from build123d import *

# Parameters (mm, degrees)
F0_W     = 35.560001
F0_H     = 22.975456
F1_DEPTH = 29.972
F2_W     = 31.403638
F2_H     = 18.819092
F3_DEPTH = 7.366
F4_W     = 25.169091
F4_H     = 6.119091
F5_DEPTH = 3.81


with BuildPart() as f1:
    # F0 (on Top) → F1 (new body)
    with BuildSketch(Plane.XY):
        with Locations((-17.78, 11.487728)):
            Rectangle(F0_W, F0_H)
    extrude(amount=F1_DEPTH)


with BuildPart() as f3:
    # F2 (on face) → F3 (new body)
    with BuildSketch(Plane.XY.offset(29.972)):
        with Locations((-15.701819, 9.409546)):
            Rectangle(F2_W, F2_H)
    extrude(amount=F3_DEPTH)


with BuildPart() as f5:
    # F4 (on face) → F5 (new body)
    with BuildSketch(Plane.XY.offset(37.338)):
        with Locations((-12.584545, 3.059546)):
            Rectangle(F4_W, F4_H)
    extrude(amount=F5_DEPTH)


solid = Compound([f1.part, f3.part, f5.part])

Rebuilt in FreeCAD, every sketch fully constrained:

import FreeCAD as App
import Part
import Sketcher
Q = App.Units.Quantity


def add_polygon(sketch, points):
    """Adds a closed chain of lines whose ends are joined by coincident constraints."""
    first, n = sketch.GeometryCount, len(points)
    for a, b in zip(points, points[1:] + points[:1]):
        sketch.addGeometry(Part.LineSegment(App.Vector(*a, 0), App.Vector(*b, 0)), False)
    for i in range(n):
        sketch.addConstraint(Sketcher.Constraint("Coincident", first + i, 2, first + (i + 1) % n, 1))

doc = App.newDocument("Part")
params = doc.addObject("Spreadsheet::Sheet", "Params")
for row, (alias, value) in enumerate([
    ("sketch1_width", "1.4 in"),
    ("pad1_length", "1.18 in"),
    ("pad2_length", "0.29 in"),
    ("pad3_length", "0.15 in"),
], start=1):
    params.set(f"A{row}", alias)
    params.set(f"B{row}", "=" + value)
    params.setAlias(f"B{row}", alias)

body = doc.addObject("PartDesign::Body", "Body")

# Sketch on XY plane
sketch1 = body.newObject("Sketcher::SketchObject", "Sketch")
sketch1.AttachmentSupport = (doc.getObject("XY_Plane"), [""])
sketch1.MapMode = "FlatFace"
add_polygon(sketch1, [(-35.560001, 22.975456), (-35.560001, 0), (0, 0), (0, 22.975456)])  # lines 0-3
sketch1.addConstraint([
    Sketcher.Constraint("Vertical", 0),
    Sketcher.Constraint("Horizontal", 1),
    Sketcher.Constraint("Vertical", 2),
    Sketcher.Constraint("Horizontal", 3),
    Sketcher.Constraint("Coincident", 1, 2, -1, 1),
    Sketcher.Constraint("DistanceX", 1, 1, 1, 2, Q("1.4 in")),
    Sketcher.Constraint("DistanceY", 0, 2, 0, 1, 22.975456),
])
sketch1.setExpression("Constraints[9]", "Params.sketch1_width")
pad1 = body.newObject("PartDesign::Pad", "Pad")
pad1.Profile = sketch1
pad1.setExpression("Length", "Params.pad1_length")
body2 = doc.addObject("PartDesign::Body", "Body001")

# Sketch on XY plane
sketch2 = body2.newObject("Sketcher::SketchObject", "Sketch001")
sketch2.AttachmentSupport = (doc.getObject("XY_Plane001"), [""])
sketch2.MapMode = "FlatFace"
sketch2.AttachmentOffset = App.Placement(App.Vector(0, 0, 1.18 * 25.4), App.Rotation())
add_polygon(sketch2, [(-31.403638, 18.819092), (-31.403638, 0), (0, 0), (0, 18.819092)])  # lines 0-3
sketch2.addConstraint([
    Sketcher.Constraint("Vertical", 0),
    Sketcher.Constraint("Horizontal", 1),
    Sketcher.Constraint("Vertical", 2),
    Sketcher.Constraint("Horizontal", 3),
    Sketcher.Constraint("Coincident", 1, 2, -1, 1),
    Sketcher.Constraint("DistanceX", 1, 1, 1, 2, 31.403638),
    Sketcher.Constraint("DistanceY", 0, 2, 0, 1, 18.819092),
])
pad2 = body2.newObject("PartDesign::Pad", "Pad001")
pad2.Profile = sketch2
pad2.setExpression("Length", "Params.pad2_length")
body3 = doc.addObject("PartDesign::Body", "Body002")

# Sketch on XY plane
sketch3 = body3.newObject("Sketcher::SketchObject", "Sketch002")
sketch3.AttachmentSupport = (doc.getObject("XY_Plane002"), [""])
sketch3.MapMode = "FlatFace"
sketch3.AttachmentOffset = App.Placement(App.Vector(0, 0, 1.47 * 25.4), App.Rotation())
add_polygon(sketch3, [(-25.16909, 6.119091), (-25.16909, 0), (0, 0), (0, 6.119091)])  # lines 0-3
sketch3.addConstraint([
    Sketcher.Constraint("Vertical", 0),
    Sketcher.Constraint("Horizontal", 1),
    Sketcher.Constraint("Vertical", 2),
    Sketcher.Constraint("Horizontal", 3),
    Sketcher.Constraint("Coincident", 1, 2, -1, 1),
    Sketcher.Constraint("DistanceX", 1, 1, 1, 2, 25.169091),
    Sketcher.Constraint("DistanceY", 0, 2, 0, 1, 6.119091),
])
pad3 = body3.newObject("PartDesign::Pad", "Pad002")
pad3.Profile = sketch3
pad3.setExpression("Length", "Params.pad3_length")

doc.recompute()
